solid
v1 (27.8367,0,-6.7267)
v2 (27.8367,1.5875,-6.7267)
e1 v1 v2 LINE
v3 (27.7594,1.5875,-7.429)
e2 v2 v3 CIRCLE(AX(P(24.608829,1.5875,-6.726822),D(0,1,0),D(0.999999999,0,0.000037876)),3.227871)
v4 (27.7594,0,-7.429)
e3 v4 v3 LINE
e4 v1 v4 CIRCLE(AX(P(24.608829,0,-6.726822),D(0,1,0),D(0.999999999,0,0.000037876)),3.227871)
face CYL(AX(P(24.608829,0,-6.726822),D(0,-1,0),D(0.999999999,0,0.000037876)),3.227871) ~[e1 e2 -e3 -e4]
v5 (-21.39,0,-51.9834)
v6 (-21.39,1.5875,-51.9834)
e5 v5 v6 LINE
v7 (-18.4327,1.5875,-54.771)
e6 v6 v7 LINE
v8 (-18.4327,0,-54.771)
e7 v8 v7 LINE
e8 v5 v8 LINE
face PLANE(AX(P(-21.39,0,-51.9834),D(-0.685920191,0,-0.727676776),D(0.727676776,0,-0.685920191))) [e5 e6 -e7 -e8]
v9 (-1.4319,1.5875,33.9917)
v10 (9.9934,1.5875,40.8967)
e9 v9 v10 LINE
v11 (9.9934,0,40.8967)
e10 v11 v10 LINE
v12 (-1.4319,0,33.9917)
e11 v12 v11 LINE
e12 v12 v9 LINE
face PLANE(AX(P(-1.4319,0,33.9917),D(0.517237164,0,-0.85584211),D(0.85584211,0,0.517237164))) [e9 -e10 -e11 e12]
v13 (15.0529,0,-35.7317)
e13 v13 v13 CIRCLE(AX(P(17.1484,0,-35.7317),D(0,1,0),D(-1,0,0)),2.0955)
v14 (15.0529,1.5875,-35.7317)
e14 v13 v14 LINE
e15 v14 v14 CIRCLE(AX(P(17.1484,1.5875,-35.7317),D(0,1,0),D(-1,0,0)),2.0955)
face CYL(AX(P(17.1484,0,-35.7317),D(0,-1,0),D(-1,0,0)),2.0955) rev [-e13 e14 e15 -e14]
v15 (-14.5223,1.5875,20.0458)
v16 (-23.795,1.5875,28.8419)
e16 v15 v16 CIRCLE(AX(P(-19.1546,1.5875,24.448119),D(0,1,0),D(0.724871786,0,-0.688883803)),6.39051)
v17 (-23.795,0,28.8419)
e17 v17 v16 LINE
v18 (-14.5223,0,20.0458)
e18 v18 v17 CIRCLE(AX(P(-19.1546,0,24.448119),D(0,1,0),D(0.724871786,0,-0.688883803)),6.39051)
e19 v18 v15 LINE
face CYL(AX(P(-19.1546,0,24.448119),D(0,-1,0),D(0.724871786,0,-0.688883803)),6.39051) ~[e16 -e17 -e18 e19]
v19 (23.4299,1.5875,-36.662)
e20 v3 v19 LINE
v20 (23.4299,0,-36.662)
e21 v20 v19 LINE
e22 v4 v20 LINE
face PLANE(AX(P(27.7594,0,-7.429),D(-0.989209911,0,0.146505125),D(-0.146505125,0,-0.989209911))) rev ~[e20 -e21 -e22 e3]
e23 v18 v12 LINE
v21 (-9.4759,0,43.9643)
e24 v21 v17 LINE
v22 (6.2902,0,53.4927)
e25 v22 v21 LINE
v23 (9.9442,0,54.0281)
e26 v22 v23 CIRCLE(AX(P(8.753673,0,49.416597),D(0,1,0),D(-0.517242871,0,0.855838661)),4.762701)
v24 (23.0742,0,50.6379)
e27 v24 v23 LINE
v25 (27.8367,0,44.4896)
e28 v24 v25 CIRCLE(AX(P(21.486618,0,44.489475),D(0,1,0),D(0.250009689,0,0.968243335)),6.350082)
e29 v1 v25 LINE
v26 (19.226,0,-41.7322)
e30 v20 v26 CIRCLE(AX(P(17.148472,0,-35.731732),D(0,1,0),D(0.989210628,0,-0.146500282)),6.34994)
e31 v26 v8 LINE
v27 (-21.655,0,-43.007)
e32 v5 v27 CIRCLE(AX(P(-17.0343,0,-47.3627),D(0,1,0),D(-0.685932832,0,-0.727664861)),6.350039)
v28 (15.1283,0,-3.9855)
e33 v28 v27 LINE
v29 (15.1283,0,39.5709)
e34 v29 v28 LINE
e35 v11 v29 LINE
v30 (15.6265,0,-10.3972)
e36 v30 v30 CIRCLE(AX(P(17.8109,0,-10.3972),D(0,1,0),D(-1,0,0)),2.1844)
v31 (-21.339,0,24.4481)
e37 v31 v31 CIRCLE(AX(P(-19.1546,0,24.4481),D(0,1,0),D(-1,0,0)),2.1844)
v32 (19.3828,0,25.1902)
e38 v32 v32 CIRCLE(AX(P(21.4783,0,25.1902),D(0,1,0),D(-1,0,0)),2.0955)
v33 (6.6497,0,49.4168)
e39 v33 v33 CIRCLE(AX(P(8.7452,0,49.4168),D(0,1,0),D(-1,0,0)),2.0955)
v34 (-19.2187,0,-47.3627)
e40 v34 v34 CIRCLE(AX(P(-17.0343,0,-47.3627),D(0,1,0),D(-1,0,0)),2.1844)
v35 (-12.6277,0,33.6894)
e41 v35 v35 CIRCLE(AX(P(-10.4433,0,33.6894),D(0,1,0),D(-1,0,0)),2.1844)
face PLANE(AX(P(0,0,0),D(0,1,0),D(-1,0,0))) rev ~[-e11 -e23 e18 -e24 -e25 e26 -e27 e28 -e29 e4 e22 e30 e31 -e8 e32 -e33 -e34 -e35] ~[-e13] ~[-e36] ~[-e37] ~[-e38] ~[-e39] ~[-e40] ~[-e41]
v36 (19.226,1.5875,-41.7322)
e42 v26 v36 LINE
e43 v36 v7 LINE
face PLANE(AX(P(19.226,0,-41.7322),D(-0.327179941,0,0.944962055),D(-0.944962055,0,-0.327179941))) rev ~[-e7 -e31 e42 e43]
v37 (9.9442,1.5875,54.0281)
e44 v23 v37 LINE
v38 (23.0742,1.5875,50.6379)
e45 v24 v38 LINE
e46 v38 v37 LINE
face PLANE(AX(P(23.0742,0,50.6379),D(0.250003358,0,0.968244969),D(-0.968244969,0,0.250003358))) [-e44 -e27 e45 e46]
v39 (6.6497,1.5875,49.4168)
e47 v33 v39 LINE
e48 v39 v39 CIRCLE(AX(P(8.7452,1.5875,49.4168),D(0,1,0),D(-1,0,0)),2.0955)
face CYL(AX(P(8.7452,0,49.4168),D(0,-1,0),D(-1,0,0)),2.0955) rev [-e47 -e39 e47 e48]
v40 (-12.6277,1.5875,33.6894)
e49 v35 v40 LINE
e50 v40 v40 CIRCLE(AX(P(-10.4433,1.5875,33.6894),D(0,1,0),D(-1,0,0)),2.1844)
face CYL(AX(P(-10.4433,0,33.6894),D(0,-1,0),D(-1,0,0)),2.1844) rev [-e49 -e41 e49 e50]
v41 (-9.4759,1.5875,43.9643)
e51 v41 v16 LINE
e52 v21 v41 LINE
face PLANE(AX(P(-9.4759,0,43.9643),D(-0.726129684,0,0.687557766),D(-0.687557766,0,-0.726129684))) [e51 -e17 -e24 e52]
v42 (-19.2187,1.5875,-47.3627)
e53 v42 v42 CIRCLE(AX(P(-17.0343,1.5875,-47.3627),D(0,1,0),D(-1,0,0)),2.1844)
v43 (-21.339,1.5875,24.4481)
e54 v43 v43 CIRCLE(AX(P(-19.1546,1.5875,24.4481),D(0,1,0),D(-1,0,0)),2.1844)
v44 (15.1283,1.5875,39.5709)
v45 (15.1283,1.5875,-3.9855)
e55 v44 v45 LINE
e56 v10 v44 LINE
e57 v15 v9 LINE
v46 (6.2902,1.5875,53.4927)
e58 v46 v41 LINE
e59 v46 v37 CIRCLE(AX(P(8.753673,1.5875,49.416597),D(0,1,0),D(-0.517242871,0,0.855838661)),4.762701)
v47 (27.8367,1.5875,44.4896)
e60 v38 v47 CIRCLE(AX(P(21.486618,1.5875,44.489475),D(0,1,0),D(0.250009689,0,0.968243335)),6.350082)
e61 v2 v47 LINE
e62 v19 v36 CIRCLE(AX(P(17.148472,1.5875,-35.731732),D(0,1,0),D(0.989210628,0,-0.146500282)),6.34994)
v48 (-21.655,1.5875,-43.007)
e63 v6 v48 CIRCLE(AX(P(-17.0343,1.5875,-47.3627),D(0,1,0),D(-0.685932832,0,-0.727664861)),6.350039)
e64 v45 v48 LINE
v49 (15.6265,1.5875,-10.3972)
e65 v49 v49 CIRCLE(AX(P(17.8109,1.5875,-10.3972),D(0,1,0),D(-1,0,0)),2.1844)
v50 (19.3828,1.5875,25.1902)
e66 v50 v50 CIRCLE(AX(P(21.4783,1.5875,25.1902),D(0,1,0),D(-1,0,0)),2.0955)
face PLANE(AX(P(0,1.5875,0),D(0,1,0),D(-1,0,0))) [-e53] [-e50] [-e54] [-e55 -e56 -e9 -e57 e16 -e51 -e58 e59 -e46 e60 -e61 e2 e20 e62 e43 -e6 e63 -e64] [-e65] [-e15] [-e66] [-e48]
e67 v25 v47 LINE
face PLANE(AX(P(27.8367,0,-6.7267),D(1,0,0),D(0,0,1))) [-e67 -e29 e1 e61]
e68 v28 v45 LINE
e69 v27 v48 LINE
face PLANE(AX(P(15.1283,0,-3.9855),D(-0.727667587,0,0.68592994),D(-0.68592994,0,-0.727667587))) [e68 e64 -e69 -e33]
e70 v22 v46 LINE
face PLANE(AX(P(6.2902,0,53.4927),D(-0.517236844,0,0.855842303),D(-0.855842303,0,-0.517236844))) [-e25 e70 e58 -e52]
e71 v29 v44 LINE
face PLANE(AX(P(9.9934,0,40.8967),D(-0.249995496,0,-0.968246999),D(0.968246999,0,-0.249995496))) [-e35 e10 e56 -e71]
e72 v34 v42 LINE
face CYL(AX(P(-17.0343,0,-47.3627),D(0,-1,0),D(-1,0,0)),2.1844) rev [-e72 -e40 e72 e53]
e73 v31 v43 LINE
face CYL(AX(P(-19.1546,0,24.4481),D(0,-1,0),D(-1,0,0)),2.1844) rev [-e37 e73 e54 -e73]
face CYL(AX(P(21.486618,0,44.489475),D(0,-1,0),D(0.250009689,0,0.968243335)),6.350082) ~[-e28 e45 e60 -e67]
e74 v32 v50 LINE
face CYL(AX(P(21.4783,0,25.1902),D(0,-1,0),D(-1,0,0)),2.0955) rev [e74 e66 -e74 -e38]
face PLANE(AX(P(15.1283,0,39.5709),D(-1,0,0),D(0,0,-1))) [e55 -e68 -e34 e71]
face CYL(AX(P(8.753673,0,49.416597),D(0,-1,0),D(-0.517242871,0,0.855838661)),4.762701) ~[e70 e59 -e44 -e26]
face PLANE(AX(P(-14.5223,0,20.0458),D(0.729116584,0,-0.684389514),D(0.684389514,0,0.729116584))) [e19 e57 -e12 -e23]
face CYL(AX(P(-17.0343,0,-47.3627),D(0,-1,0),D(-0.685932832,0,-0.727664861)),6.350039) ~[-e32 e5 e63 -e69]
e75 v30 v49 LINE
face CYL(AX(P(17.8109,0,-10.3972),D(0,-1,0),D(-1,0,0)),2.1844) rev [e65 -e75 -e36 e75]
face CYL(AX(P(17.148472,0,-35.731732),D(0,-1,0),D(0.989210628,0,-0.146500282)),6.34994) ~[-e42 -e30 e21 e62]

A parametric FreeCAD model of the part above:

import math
import FreeCAD as App
import Part
import Sketcher
from FreeCAD import Vector
Q = App.Units.Quantity

doc = App.newDocument("Part")
body = doc.addObject("PartDesign::Body", "Body")

# Sketch on XZ plane
sketch1 = doc.addObject("Sketcher::SketchObject", "Sketch")
body.addObject(sketch1)
sketch1.AttachmentSupport = (doc.XZ_Plane, [""])
sketch1.MapMode = "FlatFace"
sketch1.addGeometry([
    Part.LineSegment(Vector(-23.795, 28.8419, 0), Vector(-9.4759, 43.9643, 0)),  # 0
    Part.LineSegment(Vector(-9.4759, 43.9643, 0), Vector(6.2902, 53.4927, 0)),  # 1
    Part.ArcOfCircle(Part.Circle(Vector(8.7536, 49.4168, 0), Vector(0, 0, 1), 4.762489), math.radians(75.522867), math.radians(121.148004)),  # 2
    Part.LineSegment(Vector(9.9442, 54.0281, 0), Vector(23.0742, 50.6379, 0)),  # 3
    Part.ArcOfCircle(Part.Circle(Vector(21.4867, 44.4896, 0), Vector(0, 0, 1), 6.349941), math.radians(0), math.radians(75.52235)),  # 4
    Part.LineSegment(Vector(27.8367, 44.4896, 0), Vector(27.8367, -6.7267, 0)),  # 5
    Part.ArcOfCircle(Part.Circle(Vector(24.608829, -6.726822, 0), Vector(0, 0, 1), 3.227871), math.radians(-12.564344), math.radians(0.00217)),  # 6
    Part.LineSegment(Vector(27.7594, -7.429, 0), Vector(23.4299, -36.662, 0)),  # 7
    Part.ArcOfCircle(Part.Circle(Vector(17.1484, -35.7317, 0), Vector(0, 0, 1), 6.350016), math.radians(-70.902212), math.radians(-8.424357)),  # 8
    Part.LineSegment(Vector(19.226, -41.7322, 0), Vector(-18.4327, -54.771, 0)),  # 9
    Part.LineSegment(Vector(-18.4327, -54.771, 0), Vector(-21.39, -51.9834, 0)),  # 10
    Part.ArcOfCircle(Part.Circle(Vector(-17.0343, -47.3627, 0), Vector(0, 0, 1), 6.350039), math.radians(136.690987), math.radians(226.690987)),  # 11
    Part.LineSegment(Vector(-21.655, -43.007, 0), Vector(15.1283, -3.9855, 0)),  # 12
    Part.LineSegment(Vector(15.1283, -3.9855, 0), Vector(15.1283, 39.5709, 0)),  # 13
    Part.LineSegment(Vector(15.1283, 39.5709, 0), Vector(9.9934, 40.8967, 0)),  # 14
    Part.LineSegment(Vector(9.9934, 40.8967, 0), Vector(-1.4319, 33.9917, 0)),  # 15
    Part.LineSegment(Vector(-1.4319, 33.9917, 0), Vector(-14.5223, 20.0458, 0)),  # 16
    Part.ArcOfCircle(Part.Circle(Vector(-19.1546, 24.4481, 0), Vector(0, 0, 1), 6.390497), math.radians(136.563573), math.radians(316.458303)),  # 17
    Part.Circle(Vector(17.1484, -35.7317, 0), Vector(0, 0, 1), 2.0955),  # 18
    Part.Circle(Vector(17.8109, -10.3972, 0), Vector(0, 0, 1), 2.1844),  # 19
    Part.Circle(Vector(-17.0343, -47.3627, 0), Vector(0, 0, 1), 2.1844),  # 20
    Part.Circle(Vector(21.4783, 25.1902, 0), Vector(0, 0, 1), 2.0955),  # 21
    Part.Circle(Vector(8.7452, 49.4168, 0), Vector(0, 0, 1), 2.0955),  # 22
    Part.Circle(Vector(-19.1546, 24.4481, 0), Vector(0, 0, 1), 2.1844),  # 23
    Part.Circle(Vector(-10.4433, 33.6894, 0), Vector(0, 0, 1), 2.1844),  # 24
], False)
sketch1.addConstraint([
    Sketcher.Constraint("Coincident", 0, 2, 1, 1),
    Sketcher.Constraint("Coincident", 1, 2, 2, 2),
    Sketcher.Constraint("Coincident", 2, 1, 3, 1),
    Sketcher.Constraint("Coincident", 3, 2, 4, 2),
    Sketcher.Constraint("Coincident", 4, 1, 5, 1),
    Sketcher.Constraint("Coincident", 5, 2, 6, 2),
    Sketcher.Constraint("Coincident", 6, 1, 7, 1),
    Sketcher.Constraint("Coincident", 7, 2, 8, 2),
    Sketcher.Constraint("Coincident", 8, 1, 9, 1),
    Sketcher.Constraint("Coincident", 9, 2, 10, 1),
    Sketcher.Constraint("Coincident", 10, 2, 11, 2),
    Sketcher.Constraint("Coincident", 11, 1, 12, 1),
    Sketcher.Constraint("Coincident", 12, 2, 13, 1),
    Sketcher.Constraint("Coincident", 13, 2, 14, 1),
    Sketcher.Constraint("Coincident", 14, 2, 15, 1),
    Sketcher.Constraint("Coincident", 15, 2, 16, 1),
    Sketcher.Constraint("Coincident", 16, 2, 17, 2),
    Sketcher.Constraint("Coincident", 17, 1, 0, 1),
    Sketcher.Constraint("Vertical", 5),
    Sketcher.Constraint("Vertical", 13),
    Sketcher.Constraint("Coincident", 18, 3, 8, 3),
    Sketcher.Constraint("Coincident", 20, 3, 11, 3),
    Sketcher.Constraint("Coincident", 23, 3, 17, 3),
    Sketcher.Constraint("Diameter", 18, Q("0.165 in")),
    Sketcher.Constraint("Diameter", 21, Q("0.165 in")),
    Sketcher.Constraint("Diameter", 22, Q("0.165 in")),
    Sketcher.Constraint("Radius", 4, Q("0.25 in")),
    Sketcher.Constraint("Radius", 8, Q("0.25 in")),
    Sketcher.Constraint("Radius", 11, Q("0.25 in")),
    Sketcher.Constraint("Diameter", 19, Q("0.172 in")),
    Sketcher.Constraint("Diameter", 20, Q("0.172 in")),
    Sketcher.Constraint("Diameter", 23, Q("0.172 in")),
    Sketcher.Constraint("Diameter", 24, Q("0.172 in")),
    Sketcher.Constraint("Radius", 2, Q("0.1875 in")),
    Sketcher.Constraint("DistanceY", 6, 3, 5, 2, Q("0 in")),
    Sketcher.Constraint("Radius", 17, Q("0.2516 in")),
    Sketcher.Constraint("Distance", 10, Q("0.16 in")),
    Sketcher.Constraint("Radius", 6, Q("3.2279 mm")),
    Sketcher.Constraint("DistanceX", 12, 2, 21, 3, Q("0.25 in")),
    Sketcher.Constraint("DistanceY", 5, 2, 5, 1, Q("2.0164 in")),
    Sketcher.Constraint("DistanceY", -1, 1, 1, 2, Q("2.106 in")),
    Sketcher.Constraint("DistanceY", 8, 1, -1, 1, Q("1.643 in")),
    Sketcher.Constraint("DistanceX", 2, 3, 2, 1, Q("0.046874 in")),
    Sketcher.Constraint("DistanceX", 4, 3, 3, 2, Q("0.0625 in")),
    Sketcher.Constraint("Distance", 14, Q("0.2088 in")),
    Sketcher.Constraint("DistanceY", 13, 1, 13, 2, Q("43.5564 mm")),
    Sketcher.Constraint("DistanceX", -1, 1, 21, 3, Q("0.8456 in")),
    Sketcher.Constraint("DistanceX", -1, 1, 22, 3, Q("0.3443 in")),
    Sketcher.Constraint("DistanceX", -1, 1, 2, 1, Q("0.3915 in")),
    Sketcher.Constraint("DistanceY", -1, 1, 2, 1, Q("2.1271 in")),
    Sketcher.Constraint("DistanceX", -1, 1, 6, 1, Q("1.0929 in")),
    Sketcher.Constraint("DistanceX", 9, 2, -1, 1, Q("0.7257 in")),
    Sketcher.Constraint("DistanceY", 10, 2, -1, 1, Q("2.0466 in")),
    Sketcher.Constraint("DistanceY", 11, 1, -1, 1, Q("1.6932 in")),
    Sketcher.Constraint("DistanceY", 12, 2, -1, 1, Q("0.1569 in")),
    Sketcher.Constraint("DistanceY", -1, 1, 14, 2, Q("1.6101 in")),
    Sketcher.Constraint("DistanceY", -1, 1, 16, 2, Q("0.7892 in")),
    Sketcher.Constraint("DistanceX", 17, 1, -1, 1, Q("0.9368 in")),
    Sketcher.Constraint("DistanceY", -1, 1, 17, 1, Q("1.1355 in")),
    Sketcher.Constraint("DistanceX", 2, 3, 4, 3, Q("0.5013 in")),
    Sketcher.Constraint("DistanceY", 6, 3, 4, 3, Q("2.0164 in")),
    Sketcher.Constraint("DistanceX", 8, 3, 4, 3, Q("0.1708 in")),
    Sketcher.Constraint("DistanceY", 8, 3, 2, 3, Q("3.3523 in")),
    Sketcher.Constraint("DistanceX", 11, 3, 6, 3, Q("1.6395 in")),
    Sketcher.Constraint("DistanceY", 11, 3, 17, 3, Q("2.8272 in")),
    Sketcher.Constraint("DistanceY", 19, 3, 6, 3, Q("0.1445 in")),
    Sketcher.Constraint("DistanceY", 21, 3, 2, 3, Q("0.9538 in")),
    Sketcher.Constraint("DistanceY", 21, 3, 22, 3, Q("0.9538 in")),
    Sketcher.Constraint("DistanceY", 24, 3, 22, 3, Q("0.6192 in")),
    Sketcher.Constraint("DistanceX", 0, 2, 2, 3, Q("0.7177 in")),
    Sketcher.Constraint("DistanceX", 24, 3, 1, 2, Q("0.6588 in")),
    Sketcher.Constraint("DistanceY", 0, 2, 2, 1, Q("0.3962 in")),
    Sketcher.Constraint("DistanceY", 3, 2, 1, 2, Q("0.1124 in")),
    Sketcher.Constraint("DistanceX", 8, 3, 7, 2, Q("0.2473 in")),
    Sketcher.Constraint("DistanceX", 11, 1, 8, 3, Q("1.5277 in")),
    Sketcher.Constraint("DistanceY", 24, 3, 15, 2, Q("0.0119 in")),
    Sketcher.Constraint("DistanceX", 0, 2, 15, 2, Q("0.3167 in")),
    Sketcher.Constraint("DistanceX", -1, 1, 19, 3, Q("17.811 mm")),
])
pad1 = doc.addObject("PartDesign::Pad", "Pad")
body.addObject(pad1)
pad1.Profile = sketch1
pad1.Length = Q("0.0625 in")
pad1.Reversed = True

doc.recompute()
